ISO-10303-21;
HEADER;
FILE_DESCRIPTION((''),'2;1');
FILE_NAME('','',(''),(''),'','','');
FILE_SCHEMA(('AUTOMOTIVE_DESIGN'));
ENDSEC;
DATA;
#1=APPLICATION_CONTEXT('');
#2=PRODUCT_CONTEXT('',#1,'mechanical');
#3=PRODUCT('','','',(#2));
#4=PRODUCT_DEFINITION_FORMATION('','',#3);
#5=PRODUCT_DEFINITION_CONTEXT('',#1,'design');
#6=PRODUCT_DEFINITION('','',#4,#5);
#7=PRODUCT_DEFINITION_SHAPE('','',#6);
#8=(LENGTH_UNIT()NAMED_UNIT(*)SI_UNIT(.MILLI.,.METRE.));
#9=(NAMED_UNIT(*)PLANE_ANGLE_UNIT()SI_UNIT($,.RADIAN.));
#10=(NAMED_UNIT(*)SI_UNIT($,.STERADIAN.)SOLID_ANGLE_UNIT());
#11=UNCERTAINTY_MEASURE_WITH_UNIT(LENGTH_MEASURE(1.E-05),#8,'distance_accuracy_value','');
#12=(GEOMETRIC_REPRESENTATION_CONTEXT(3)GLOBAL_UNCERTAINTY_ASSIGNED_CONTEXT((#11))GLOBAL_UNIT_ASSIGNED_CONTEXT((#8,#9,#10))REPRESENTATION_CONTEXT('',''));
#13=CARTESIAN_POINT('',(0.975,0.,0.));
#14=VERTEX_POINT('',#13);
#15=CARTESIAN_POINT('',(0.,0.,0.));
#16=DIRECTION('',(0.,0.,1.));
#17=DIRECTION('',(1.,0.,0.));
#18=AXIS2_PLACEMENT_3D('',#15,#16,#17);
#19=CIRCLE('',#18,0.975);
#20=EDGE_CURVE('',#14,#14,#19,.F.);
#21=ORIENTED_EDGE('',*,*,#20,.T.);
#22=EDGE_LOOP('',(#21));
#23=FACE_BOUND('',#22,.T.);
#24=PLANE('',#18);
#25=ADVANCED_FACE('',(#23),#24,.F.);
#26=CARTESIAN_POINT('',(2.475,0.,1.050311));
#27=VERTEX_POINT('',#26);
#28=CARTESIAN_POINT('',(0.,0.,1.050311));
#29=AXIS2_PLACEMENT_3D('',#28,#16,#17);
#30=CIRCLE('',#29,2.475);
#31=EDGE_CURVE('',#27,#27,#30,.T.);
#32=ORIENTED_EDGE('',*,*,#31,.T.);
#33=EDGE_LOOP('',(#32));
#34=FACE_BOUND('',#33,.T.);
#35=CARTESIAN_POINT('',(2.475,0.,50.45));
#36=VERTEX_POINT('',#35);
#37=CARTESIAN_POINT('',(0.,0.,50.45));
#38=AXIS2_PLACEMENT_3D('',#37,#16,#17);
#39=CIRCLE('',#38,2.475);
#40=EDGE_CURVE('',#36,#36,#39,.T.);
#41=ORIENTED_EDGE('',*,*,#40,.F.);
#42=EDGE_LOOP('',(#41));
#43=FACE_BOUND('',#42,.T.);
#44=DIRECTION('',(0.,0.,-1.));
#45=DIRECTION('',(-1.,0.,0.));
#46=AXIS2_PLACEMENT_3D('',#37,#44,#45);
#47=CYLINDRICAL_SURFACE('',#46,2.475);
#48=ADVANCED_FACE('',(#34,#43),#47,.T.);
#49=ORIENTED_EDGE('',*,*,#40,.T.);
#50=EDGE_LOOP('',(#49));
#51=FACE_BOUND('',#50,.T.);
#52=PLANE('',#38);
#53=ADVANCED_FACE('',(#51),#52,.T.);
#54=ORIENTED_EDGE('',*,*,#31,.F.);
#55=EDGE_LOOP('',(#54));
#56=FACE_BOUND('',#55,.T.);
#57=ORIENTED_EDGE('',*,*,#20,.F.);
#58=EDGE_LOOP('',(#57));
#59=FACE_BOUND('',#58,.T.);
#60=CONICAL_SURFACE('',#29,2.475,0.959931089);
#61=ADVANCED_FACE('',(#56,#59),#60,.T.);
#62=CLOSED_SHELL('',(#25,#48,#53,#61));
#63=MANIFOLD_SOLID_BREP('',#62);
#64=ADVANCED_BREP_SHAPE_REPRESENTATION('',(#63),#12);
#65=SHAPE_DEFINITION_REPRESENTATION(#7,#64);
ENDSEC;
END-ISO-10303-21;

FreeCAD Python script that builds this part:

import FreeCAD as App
import Part
import Sketcher
from FreeCAD import Vector


def edges_at(feature, points):
    """Names of the edges that pass closest to the given points."""
    edges = feature.Shape.Edges
    near = lambda p: min(range(len(edges)), key=lambda i: edges[i].distToShape(Part.Vertex(*p))[0])
    return sorted({f"Edge{near(p) + 1}" for p in points})

doc = App.newDocument("Part")
body = doc.addObject("PartDesign::Body", "Body")

# Sketch on XY plane
sketch1 = body.newObject("Sketcher::SketchObject", "Sketch")
sketch1.AttachmentSupport = (doc.getObject("XY_Plane"), [""])
sketch1.MapMode = "FlatFace"
sketch1.addGeometry(Part.Circle(Vector(0, 0, 0), Vector(0, 0, 1), 2.5), False)
sketch1.addConstraint([
    Sketcher.Constraint("Coincident", 0, 3, -1, 1),
    Sketcher.Constraint("Diameter", 0, 4.95),
])
pad1 = body.newObject("PartDesign::Pad", "Pad")
pad1.Profile = sketch1
pad1.Length = 50.45
doc.recompute()

chamfer = body.newObject("PartDesign::Chamfer", "Chamfer")
chamfer.Base = (pad1, edges_at(pad1, [(-2.475, 0, 0)]))
chamfer.ChamferType = "Two distances"
chamfer.Size = 1.5
chamfer.Size2 = 1.050311
chamfer.FlipDirection = True

doc.recompute()
